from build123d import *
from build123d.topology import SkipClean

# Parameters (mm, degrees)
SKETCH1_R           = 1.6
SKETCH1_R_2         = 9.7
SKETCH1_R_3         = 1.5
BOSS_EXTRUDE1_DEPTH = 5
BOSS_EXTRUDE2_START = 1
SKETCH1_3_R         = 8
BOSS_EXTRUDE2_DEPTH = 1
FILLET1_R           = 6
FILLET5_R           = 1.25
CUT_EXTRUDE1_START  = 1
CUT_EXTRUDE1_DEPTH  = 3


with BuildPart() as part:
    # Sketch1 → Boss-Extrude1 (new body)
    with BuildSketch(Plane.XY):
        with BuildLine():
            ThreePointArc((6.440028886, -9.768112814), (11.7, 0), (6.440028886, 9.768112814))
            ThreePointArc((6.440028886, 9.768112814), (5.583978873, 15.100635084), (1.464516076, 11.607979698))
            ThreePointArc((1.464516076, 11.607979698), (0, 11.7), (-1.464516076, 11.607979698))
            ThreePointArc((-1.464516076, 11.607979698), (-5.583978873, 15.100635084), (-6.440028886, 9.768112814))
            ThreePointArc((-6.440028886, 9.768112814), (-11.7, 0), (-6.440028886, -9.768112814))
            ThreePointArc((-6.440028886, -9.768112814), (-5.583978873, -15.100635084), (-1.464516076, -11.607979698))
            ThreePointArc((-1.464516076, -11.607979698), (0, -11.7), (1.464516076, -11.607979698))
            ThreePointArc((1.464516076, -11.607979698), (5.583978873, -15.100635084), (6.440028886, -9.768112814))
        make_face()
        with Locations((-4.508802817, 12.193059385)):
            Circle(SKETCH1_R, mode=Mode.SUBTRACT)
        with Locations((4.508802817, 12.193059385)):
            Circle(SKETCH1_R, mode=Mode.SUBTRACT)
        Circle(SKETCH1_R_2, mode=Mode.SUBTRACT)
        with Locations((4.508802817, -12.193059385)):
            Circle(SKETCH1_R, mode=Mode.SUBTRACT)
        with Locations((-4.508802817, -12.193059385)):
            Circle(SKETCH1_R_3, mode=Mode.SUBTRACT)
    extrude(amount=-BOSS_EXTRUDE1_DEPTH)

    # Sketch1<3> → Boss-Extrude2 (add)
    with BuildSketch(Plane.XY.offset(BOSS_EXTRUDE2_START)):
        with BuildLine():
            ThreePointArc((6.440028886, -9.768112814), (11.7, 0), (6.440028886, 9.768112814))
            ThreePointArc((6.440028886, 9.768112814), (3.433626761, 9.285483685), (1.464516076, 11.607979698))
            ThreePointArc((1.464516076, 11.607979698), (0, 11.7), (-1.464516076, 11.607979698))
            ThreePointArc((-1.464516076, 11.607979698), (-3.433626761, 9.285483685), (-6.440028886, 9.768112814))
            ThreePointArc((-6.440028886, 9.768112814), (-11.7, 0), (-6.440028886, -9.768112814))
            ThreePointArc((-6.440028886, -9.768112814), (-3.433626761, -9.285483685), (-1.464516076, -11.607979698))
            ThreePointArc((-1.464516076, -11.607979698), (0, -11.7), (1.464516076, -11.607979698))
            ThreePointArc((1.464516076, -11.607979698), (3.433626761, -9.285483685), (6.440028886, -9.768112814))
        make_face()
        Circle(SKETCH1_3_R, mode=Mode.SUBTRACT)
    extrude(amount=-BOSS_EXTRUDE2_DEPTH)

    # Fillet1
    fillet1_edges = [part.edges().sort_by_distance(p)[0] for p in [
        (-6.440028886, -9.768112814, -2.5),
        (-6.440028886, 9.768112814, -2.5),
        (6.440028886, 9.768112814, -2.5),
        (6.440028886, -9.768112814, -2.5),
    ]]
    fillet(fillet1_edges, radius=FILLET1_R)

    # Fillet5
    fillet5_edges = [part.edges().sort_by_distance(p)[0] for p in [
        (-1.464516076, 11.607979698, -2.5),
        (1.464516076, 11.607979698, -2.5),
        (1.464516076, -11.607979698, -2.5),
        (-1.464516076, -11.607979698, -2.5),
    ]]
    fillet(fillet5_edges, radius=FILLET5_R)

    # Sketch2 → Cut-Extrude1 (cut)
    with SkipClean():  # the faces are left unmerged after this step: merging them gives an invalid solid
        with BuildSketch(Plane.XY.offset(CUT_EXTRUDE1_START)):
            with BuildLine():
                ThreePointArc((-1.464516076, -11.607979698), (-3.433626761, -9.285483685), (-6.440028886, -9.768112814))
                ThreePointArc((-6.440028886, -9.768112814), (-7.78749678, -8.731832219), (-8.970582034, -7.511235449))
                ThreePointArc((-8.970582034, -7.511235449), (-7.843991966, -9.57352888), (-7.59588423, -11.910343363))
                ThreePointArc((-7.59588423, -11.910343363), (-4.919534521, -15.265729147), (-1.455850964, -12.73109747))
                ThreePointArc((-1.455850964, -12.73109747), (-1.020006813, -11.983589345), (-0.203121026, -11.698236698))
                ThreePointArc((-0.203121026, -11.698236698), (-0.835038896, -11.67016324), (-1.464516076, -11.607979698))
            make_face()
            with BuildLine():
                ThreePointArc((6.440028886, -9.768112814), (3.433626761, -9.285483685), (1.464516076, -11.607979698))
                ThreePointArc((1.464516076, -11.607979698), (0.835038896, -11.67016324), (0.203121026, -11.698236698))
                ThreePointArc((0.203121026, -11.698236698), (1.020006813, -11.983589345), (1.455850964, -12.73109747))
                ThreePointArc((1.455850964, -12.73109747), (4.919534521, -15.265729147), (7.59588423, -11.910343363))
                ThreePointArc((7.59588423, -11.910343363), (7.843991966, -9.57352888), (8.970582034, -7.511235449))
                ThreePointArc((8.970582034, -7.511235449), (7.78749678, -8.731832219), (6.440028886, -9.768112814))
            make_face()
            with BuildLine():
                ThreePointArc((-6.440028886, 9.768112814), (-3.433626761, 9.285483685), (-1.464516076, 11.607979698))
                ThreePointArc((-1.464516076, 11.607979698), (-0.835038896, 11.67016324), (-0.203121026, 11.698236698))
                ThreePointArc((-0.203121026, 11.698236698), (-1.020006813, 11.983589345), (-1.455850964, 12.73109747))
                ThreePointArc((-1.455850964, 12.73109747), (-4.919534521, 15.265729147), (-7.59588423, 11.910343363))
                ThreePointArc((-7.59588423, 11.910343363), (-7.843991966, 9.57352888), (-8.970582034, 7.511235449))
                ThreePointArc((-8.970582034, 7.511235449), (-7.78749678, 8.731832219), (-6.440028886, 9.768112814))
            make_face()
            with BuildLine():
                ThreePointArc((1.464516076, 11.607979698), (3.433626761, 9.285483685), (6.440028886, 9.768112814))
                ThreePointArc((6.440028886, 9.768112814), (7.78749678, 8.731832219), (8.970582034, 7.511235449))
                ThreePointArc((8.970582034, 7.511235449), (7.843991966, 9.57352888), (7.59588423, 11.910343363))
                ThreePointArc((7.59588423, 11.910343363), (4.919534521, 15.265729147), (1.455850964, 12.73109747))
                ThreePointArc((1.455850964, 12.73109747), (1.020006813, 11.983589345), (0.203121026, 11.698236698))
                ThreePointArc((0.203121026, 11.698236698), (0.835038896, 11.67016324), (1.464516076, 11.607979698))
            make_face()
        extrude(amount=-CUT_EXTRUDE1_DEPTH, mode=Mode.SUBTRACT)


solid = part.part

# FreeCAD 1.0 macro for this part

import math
import FreeCAD as App
import Part
import Sketcher
Q = App.Units.Quantity


def edges_at(feature, points):
    """Names of the edges that pass closest to the given points."""
    edges = feature.Shape.Edges
    near = lambda p: min(range(len(edges)), key=lambda i: edges[i].distToShape(Part.Vertex(*p))[0])
    return sorted({f"Edge{near(p) + 1}" for p in points})

doc = App.newDocument("Part")
body = doc.addObject("PartDesign::Body", "Body")

# Sketch on XY plane
sketch1 = body.newObject("Sketcher::SketchObject", "Sketch")
sketch1.AttachmentSupport = (doc.getObject("XY_Plane"), [""])
sketch1.MapMode = "FlatFace"
sketch1.addGeometry([
    Part.ArcOfCircle(Part.Circle(App.Vector(0, 0, 0), App.Vector(0, 0, 1), 11.7), math.radians(-56.603495), math.radians(56.603495)),  # 0
    Part.ArcOfCircle(Part.Circle(App.Vector(4.508803, 12.193059, 0), App.Vector(0, 0, 1), 3.1), math.radians(-51.466204), math.radians(190.878992)),  # 1
    Part.ArcOfCircle(Part.Circle(App.Vector(0, 0, 0), App.Vector(0, 0, 1), 11.7), math.radians(82.809293), math.radians(97.190707)),  # 2
    Part.ArcOfCircle(Part.Circle(App.Vector(-4.508803, 12.193059, 0), App.Vector(0, 0, 1), 3.1), math.radians(-10.878992), math.radians(231.466204)),  # 3
    Part.ArcOfCircle(Part.Circle(App.Vector(0, 0, 0), App.Vector(0, 0, 1), 11.7), math.radians(123.396505), math.radians(236.603495)),  # 4
    Part.ArcOfCircle(Part.Circle(App.Vector(-4.508803, -12.193059, 0), App.Vector(0, 0, 1), 3.1), math.radians(128.533796), math.radians(370.878992)),  # 5
    Part.ArcOfCircle(Part.Circle(App.Vector(0, 0, 0), App.Vector(0, 0, 1), 11.7), math.radians(-97.190707), math.radians(-82.809293)),  # 6
    Part.ArcOfCircle(Part.Circle(App.Vector(4.508803, -12.193059, 0), App.Vector(0, 0, 1), 3.1), math.radians(169.121008), math.radians(411.466204)),  # 7
    Part.Circle(App.Vector(-4.508803, -12.193059, 0), App.Vector(0, 0, 1), 1.5),  # 8
    Part.Circle(App.Vector(4.508803, -12.193059, 0), App.Vector(0, 0, 1), 1.6),  # 9
    Part.Circle(App.Vector(-4.508803, 12.193059, 0), App.Vector(0, 0, 1), 1.6),  # 10
    Part.Circle(App.Vector(0, 0, 0), App.Vector(0, 0, 1), 9.7),  # 11
    Part.Circle(App.Vector(4.508803, 12.193059, 0), App.Vector(0, 0, 1), 1.6),  # 12
], False)
sketch1.addConstraint([
    Sketcher.Constraint("Coincident", 0, 2, 1, 1),
    Sketcher.Constraint("Coincident", 1, 2, 2, 1),
    Sketcher.Constraint("Coincident", 2, 2, 3, 1),
    Sketcher.Constraint("Coincident", 3, 2, 4, 1),
    Sketcher.Constraint("Coincident", 4, 2, 5, 1),
    Sketcher.Constraint("Coincident", 5, 2, 6, 1),
    Sketcher.Constraint("Coincident", 6, 2, 7, 1),
    Sketcher.Constraint("Coincident", 7, 2, 0, 1),
    Sketcher.Constraint("Coincident", 0, 3, -1, 1),
    Sketcher.Constraint("Coincident", 2, 3, -1, 1),
    Sketcher.Constraint("Coincident", 4, 3, -1, 1),
    Sketcher.Constraint("Coincident", 6, 3, -1, 1),
    Sketcher.Constraint("Coincident", 11, 3, -1, 1),
    Sketcher.Constraint("Coincident", 8, 3, 5, 3),
    Sketcher.Constraint("Coincident", 9, 3, 7, 3),
    Sketcher.Constraint("Coincident", 10, 3, 3, 3),
    Sketcher.Constraint("Coincident", 12, 3, 1, 3),
    Sketcher.Constraint("Equal", 0, 2),
    Sketcher.Constraint("Equal", 1, 3),
    Sketcher.Constraint("Equal", 2, 4),
    Sketcher.Constraint("Equal", 3, 5),
    Sketcher.Constraint("Equal", 4, 6),
    Sketcher.Constraint("Equal", 5, 7),
    Sketcher.Constraint("Equal", 9, 10),
    Sketcher.Constraint("Equal", 10, 12),
    Sketcher.Constraint("Symmetric", 1, 3, 5, 3, -1, 1),
    Sketcher.Constraint("Symmetric", 3, 3, 7, 3, -1, 1),
    Sketcher.Constraint("Symmetric", 1, 3, 3, 3, -2),
    Sketcher.Constraint("Diameter", 8, Q("3 mm")),
    Sketcher.Constraint("Diameter", 9, Q("3.2 mm")),
    Sketcher.Constraint("Diameter", 11, Q("19.4 mm")),
    Sketcher.Constraint("Radius", 0, Q("11.7 mm")),
    Sketcher.Constraint("Radius", 1, Q("3.1 mm")),
    Sketcher.Constraint("DistanceY", -1, 1, 1, 3, Q("12.193059 mm")),
    Sketcher.Constraint("DistanceX", -1, 1, 0, 2, Q("6.440029 mm")),
])
pad1 = body.newObject("PartDesign::Pad", "Pad")
pad1.Profile = sketch1
pad1.Length = 5
pad1.Reversed = True

# Sketch on XY plane
sketch2 = body.newObject("Sketcher::SketchObject", "Sketch001")
sketch2.AttachmentSupport = (doc.getObject("XY_Plane"), [""])
sketch2.MapMode = "FlatFace"
sketch2.AttachmentOffset = App.Placement(App.Vector(0, 0, 1), App.Rotation())
sketch2.addGeometry([
    Part.ArcOfCircle(Part.Circle(App.Vector(0, 0, 0), App.Vector(0, 0, 1), 11.7), math.radians(-56.603495), math.radians(56.603495)),  # 0
    Part.ArcOfCircle(Part.Circle(App.Vector(4.508803, 12.193059, 0), App.Vector(0, 0, 1), 3.1), math.radians(-169.121008), math.radians(-51.466204)),  # 1
    Part.ArcOfCircle(Part.Circle(App.Vector(0, 0, 0), App.Vector(0, 0, 1), 11.7), math.radians(82.809293), math.radians(97.190707)),  # 2
    Part.ArcOfCircle(Part.Circle(App.Vector(-4.508803, 12.193059, 0), App.Vector(0, 0, 1), 3.1), math.radians(-128.533796), math.radians(-10.878992)),  # 3
    Part.ArcOfCircle(Part.Circle(App.Vector(0, 0, 0), App.Vector(0, 0, 1), 11.7), math.radians(123.396505), math.radians(236.603495)),  # 4
    Part.ArcOfCircle(Part.Circle(App.Vector(-4.508803, -12.193059, 0), App.Vector(0, 0, 1), 3.1), math.radians(10.878992), math.radians(128.533796)),  # 5
    Part.ArcOfCircle(Part.Circle(App.Vector(0, 0, 0), App.Vector(0, 0, 1), 11.7), math.radians(-97.190707), math.radians(-82.809293)),  # 6
    Part.ArcOfCircle(Part.Circle(App.Vector(4.508803, -12.193059, 0), App.Vector(0, 0, 1), 3.1), math.radians(51.466204), math.radians(169.121008)),  # 7
    Part.Circle(App.Vector(0, 0, 0), App.Vector(0, 0, 1), 8),  # 8
], False)
sketch2.addConstraint([
    Sketcher.Constraint("Coincident", 0, 2, 1, 2),
    Sketcher.Constraint("Coincident", 1, 1, 2, 1),
    Sketcher.Constraint("Coincident", 2, 2, 3, 2),
    Sketcher.Constraint("Coincident", 3, 1, 4, 1),
    Sketcher.Constraint("Coincident", 4, 2, 5, 2),
    Sketcher.Constraint("Coincident", 5, 1, 6, 1),
    Sketcher.Constraint("Coincident", 6, 2, 7, 2),
    Sketcher.Constraint("Coincident", 7, 1, 0, 1),
    Sketcher.Constraint("Coincident", 0, 3, -1, 1),
    Sketcher.Constraint("Coincident", 2, 3, -1, 1),
    Sketcher.Constraint("Coincident", 4, 3, -1, 1),
    Sketcher.Constraint("Coincident", 6, 3, -1, 1),
    Sketcher.Constraint("Coincident", 8, 3, -1, 1),
    Sketcher.Constraint("Equal", 0, 2),
    Sketcher.Constraint("Equal", 1, 3),
    Sketcher.Constraint("Equal", 2, 4),
    Sketcher.Constraint("Equal", 3, 5),
    Sketcher.Constraint("Equal", 4, 6),
    Sketcher.Constraint("Equal", 5, 7),
    Sketcher.Constraint("Symmetric", 1, 3, 5, 3, -1, 1),
    Sketcher.Constraint("Symmetric", 3, 3, 7, 3, -1, 1),
    Sketcher.Constraint("Symmetric", 1, 3, 3, 3, -2),
    Sketcher.Constraint("Diameter", 8, Q("16 mm")),
    Sketcher.Constraint("Radius", 0, Q("11.7 mm")),
    Sketcher.Constraint("Radius", 1, Q("3.1 mm")),
    Sketcher.Constraint("DistanceY", -1, 1, 1, 3, Q("12.193059 mm")),
    Sketcher.Constraint("DistanceX", -1, 1, 0, 2, Q("6.440029 mm")),
])
pad2 = body.newObject("PartDesign::Pad", "Pad001")
pad2.Profile = sketch2
pad2.Length = 1
pad2.Reversed = True
doc.recompute()

fillet = body.newObject("PartDesign::Fillet", "Fillet")
fillet.Base = (pad2, edges_at(pad2, [
    (-6.44, -9.768, -2.5),
    (-6.44, 9.768, -2.5),
    (6.44, 9.768, -2.5),
    (6.44, -9.768, -2.5),
]))
fillet.Radius = 6
doc.recompute()

fillet2 = body.newObject("PartDesign::Fillet", "Fillet001")
fillet2.Base = (fillet, edges_at(fillet, [
    (-1.465, 11.608, -2.5),
    (1.465, 11.608, -2.5),
    (1.465, -11.608, -2.5),
    (-1.465, -11.608, -2.5),
]))
fillet2.Radius = 1.25

# Sketch on XY plane
sketch3 = body.newObject("Sketcher::SketchObject", "Sketch002")
sketch3.AttachmentSupport = (doc.getObject("XY_Plane"), [""])
sketch3.MapMode = "FlatFace"
sketch3.AttachmentOffset = App.Placement(App.Vector(0, 0, 1), App.Rotation())
sketch3.addGeometry([
    Part.ArcOfCircle(Part.Circle(App.Vector(-4.508803, -12.193059, 0), App.Vector(0, 0, 1), 3.1), math.radians(10.878992), math.radians(128.533796)),  # 0
    Part.ArcOfCircle(Part.Circle(App.Vector(0, 0, 0), App.Vector(0, 0, 1), 11.7), math.radians(-140.059934), math.radians(-123.396505)),  # 1
    Part.ArcOfCircle(Part.Circle(App.Vector(-13.570881, -11.363151, 0), App.Vector(0, 0, 1), 6), math.radians(-5.232572), math.radians(39.940066)),  # 2
    Part.ArcOfCircle(Part.Circle(App.Vector(-4.508803, -12.193059, 0), App.Vector(0, 0, 1), 3.1), math.radians(174.767428), math.radians(350.005091)),  # 3
    Part.ArcOfCircle(Part.Circle(App.Vector(-0.224822, -12.948048, 0), App.Vector(0, 0, 1), 1.25), math.radians(89.005251), math.radians(170.005091)),  # 4
    Part.ArcOfCircle(Part.Circle(App.Vector(0, 0, 0), App.Vector(0, 0, 1), 11.7), math.radians(-97.190707), math.radians(-90.994749)),  # 5
    Part.ArcOfCircle(Part.Circle(App.Vector(4.508803, -12.193059, 0), App.Vector(0, 0, 1), 3.1), math.radians(51.466204), math.radians(169.121008)),  # 6
    Part.ArcOfCircle(Part.Circle(App.Vector(0, 0, 0), App.Vector(0, 0, 1), 11.7), math.radians(-89.005251), math.radians(-82.809293)),  # 7
    Part.ArcOfCircle(Part.Circle(App.Vector(0.224822, -12.948048, 0), App.Vector(0, 0, 1), 1.25), math.radians(9.994909), math.radians(90.994749)),  # 8
    Part.ArcOfCircle(Part.Circle(App.Vector(4.508803, -12.193059, 0), App.Vector(0, 0, 1), 3.1), math.radians(-170.005091), math.radians(5.232572)),  # 9
    Part.ArcOfCircle(Part.Circle(App.Vector(13.570881, -11.363151, 0), App.Vector(0, 0, 1), 6), math.radians(140.059934), math.radians(185.232572)),  # 10
    Part.ArcOfCircle(Part.Circle(App.Vector(0, 0, 0), App.Vector(0, 0, 1), 11.7), math.radians(-56.603495), math.radians(-39.940066)),  # 11
    Part.ArcOfCircle(Part.Circle(App.Vector(-4.508803, 12.193059, 0), App.Vector(0, 0, 1), 3.1), math.radians(-128.533796), math.radians(-10.878992)),  # 12
    Part.ArcOfCircle(Part.Circle(App.Vector(0, 0, 0), App.Vector(0, 0, 1), 11.7), math.radians(90.994749), math.radians(97.190707)),  # 13
    Part.ArcOfCircle(Part.Circle(App.Vector(-0.224822, 12.948048, 0), App.Vector(0, 0, 1), 1.25), math.radians(-170.005091), math.radians(-89.005251)),  # 14
    Part.ArcOfCircle(Part.Circle(App.Vector(-4.508803, 12.193059, 0), App.Vector(0, 0, 1), 3.1), math.radians(9.994909), math.radians(185.232572)),  # 15
    Part.ArcOfCircle(Part.Circle(App.Vector(-13.570881, 11.363151, 0), App.Vector(0, 0, 1), 6), math.radians(-39.940066), math.radians(5.232572)),  # 16
    Part.ArcOfCircle(Part.Circle(App.Vector(0, 0, 0), App.Vector(0, 0, 1), 11.7), math.radians(123.396505), math.radians(140.059934)),  # 17
    Part.ArcOfCircle(Part.Circle(App.Vector(4.508803, 12.193059, 0), App.Vector(0, 0, 1), 3.1), math.radians(-169.121008), math.radians(-51.466204)),  # 18
    Part.ArcOfCircle(Part.Circle(App.Vector(0, 0, 0), App.Vector(0, 0, 1), 11.7), math.radians(39.940066), math.radians(56.603495)),  # 19
    Part.ArcOfCircle(Part.Circle(App.Vector(13.570881, 11.363151, 0), App.Vector(0, 0, 1), 6), math.radians(174.767428), math.radians(219.940066)),  # 20
    Part.ArcOfCircle(Part.Circle(App.Vector(4.508803, 12.193059, 0), App.Vector(0, 0, 1), 3.1), math.radians(-5.232572), math.radians(170.005091)),  # 21
    Part.ArcOfCircle(Part.Circle(App.Vector(0.224822, 12.948048, 0), App.Vector(0, 0, 1), 1.25), math.radians(-90.994749), math.radians(-9.994909)),  # 22
    Part.ArcOfCircle(Part.Circle(App.Vector(0, 0, 0), App.Vector(0, 0, 1), 11.7), math.radians(82.809293), math.radians(89.005251)),  # 23
], False)
sketch3.addConstraint([
    Sketcher.Constraint("Coincident", 0, 2, 1, 2),
    Sketcher.Constraint("Tangent", 1, 1, 2, 2),
    Sketcher.Constraint("Tangent", 2, 1, 3, 1),
    Sketcher.Constraint("Tangent", 3, 2, 4, 2),
    Sketcher.Constraint("Tangent", 4, 1, 5, 2),
    Sketcher.Constraint("Coincident", 5, 1, 0, 1),
    Sketcher.Constraint("Coincident", 6, 2, 7, 2),
    Sketcher.Constraint("Tangent", 7, 1, 8, 2),
    Sketcher.Constraint("Tangent", 8, 1, 9, 1),
    Sketcher.Constraint("Tangent", 9, 2, 10, 2),
    Sketcher.Constraint("Tangent", 10, 1, 11, 2),
    Sketcher.Constraint("Coincident", 11, 1, 6, 1),
    Sketcher.Constraint("Coincident", 12, 2, 13, 2),
    Sketcher.Constraint("Tangent", 13, 1, 14, 2),
    Sketcher.Constraint("Tangent", 14, 1, 15, 1),
    Sketcher.Constraint("Tangent", 15, 2, 16, 2),
    Sketcher.Constraint("Tangent", 16, 1, 17, 2),
    Sketcher.Constraint("Coincident", 17, 1, 12, 1),
    Sketcher.Constraint("Coincident", 18, 2, 19, 2),
    Sketcher.Constraint("Tangent", 19, 1, 20, 2),
    Sketcher.Constraint("Tangent", 20, 1, 21, 1),
    Sketcher.Constraint("Tangent", 21, 2, 22, 2),
    Sketcher.Constraint("Tangent", 22, 1, 23, 2),
    Sketcher.Constraint("Coincident", 23, 1, 18, 1),
    Sketcher.Constraint("Coincident", 1, 3, -1, 1),
    Sketcher.Constraint("Coincident", 5, 3, -1, 1),
    Sketcher.Constraint("Coincident", 7, 3, -1, 1),
    Sketcher.Constraint("Coincident", 11, 3, -1, 1),
    Sketcher.Constraint("Coincident", 13, 3, -1, 1),
    Sketcher.Constraint("Coincident", 17, 3, -1, 1),
    Sketcher.Constraint("Coincident", 19, 3, -1, 1),
    Sketcher.Constraint("Coincident", 23, 3, -1, 1),
    Sketcher.Constraint("Coincident", 3, 3, 0, 3),
    Sketcher.Constraint("Coincident", 9, 3, 6, 3),
    Sketcher.Constraint("Coincident", 15, 3, 12, 3),
    Sketcher.Constraint("Coincident", 21, 3, 18, 3),
    Sketcher.Constraint("Equal", 0, 3),
    Sketcher.Constraint("Equal", 1, 5),
    Sketcher.Constraint("Equal", 3, 6),
    Sketcher.Constraint("Equal", 5, 7),
    Sketcher.Constraint("Equal", 4, 8),
    Sketcher.Constraint("Equal", 6, 9),
    Sketcher.Constraint("Equal", 2, 10),
    Sketcher.Constraint("Equal", 7, 11),
    Sketcher.Constraint("Equal", 9, 12),
    Sketcher.Constraint("Equal", 11, 13),
    Sketcher.Constraint("Equal", 8, 14),
    Sketcher.Constraint("Equal", 12, 15),
    Sketcher.Constraint("Equal", 10, 16),
    Sketcher.Constraint("Equal", 13, 17),
    Sketcher.Constraint("Equal", 15, 18),
    Sketcher.Constraint("Equal", 17, 19),
    Sketcher.Constraint("Equal", 16, 20),
    Sketcher.Constraint("Equal", 18, 21),
    Sketcher.Constraint("Equal", 14, 22),
    Sketcher.Constraint("Equal", 19, 23),
    Sketcher.Constraint("Symmetric", 6, 3, 12, 3, -1, 1),
    Sketcher.Constraint("Symmetric", 0, 3, 18, 3, -1, 1),
    Sketcher.Constraint("Symmetric", 0, 3, 6, 3, -2),
    Sketcher.Constraint("Radius", 2, Q("6 mm")),
    Sketcher.Constraint("Radius", 0, Q("3.1 mm")),
    Sketcher.Constraint("Radius", 1, Q("11.7 mm")),
    Sketcher.Constraint("Radius", 4, Q("1.25 mm")),
    Sketcher.Constraint("DistanceY", 19, 1, 13, 1, Q("4.187001 mm")),
    Sketcher.Constraint("DistanceX", 4, 3, 4, 1, Q("0.021701 mm")),
])
pocket1 = body.newObject("PartDesign::Pocket", "Pocket")
pocket1.Profile = sketch3
pocket1.Length = 3

doc.recompute()
